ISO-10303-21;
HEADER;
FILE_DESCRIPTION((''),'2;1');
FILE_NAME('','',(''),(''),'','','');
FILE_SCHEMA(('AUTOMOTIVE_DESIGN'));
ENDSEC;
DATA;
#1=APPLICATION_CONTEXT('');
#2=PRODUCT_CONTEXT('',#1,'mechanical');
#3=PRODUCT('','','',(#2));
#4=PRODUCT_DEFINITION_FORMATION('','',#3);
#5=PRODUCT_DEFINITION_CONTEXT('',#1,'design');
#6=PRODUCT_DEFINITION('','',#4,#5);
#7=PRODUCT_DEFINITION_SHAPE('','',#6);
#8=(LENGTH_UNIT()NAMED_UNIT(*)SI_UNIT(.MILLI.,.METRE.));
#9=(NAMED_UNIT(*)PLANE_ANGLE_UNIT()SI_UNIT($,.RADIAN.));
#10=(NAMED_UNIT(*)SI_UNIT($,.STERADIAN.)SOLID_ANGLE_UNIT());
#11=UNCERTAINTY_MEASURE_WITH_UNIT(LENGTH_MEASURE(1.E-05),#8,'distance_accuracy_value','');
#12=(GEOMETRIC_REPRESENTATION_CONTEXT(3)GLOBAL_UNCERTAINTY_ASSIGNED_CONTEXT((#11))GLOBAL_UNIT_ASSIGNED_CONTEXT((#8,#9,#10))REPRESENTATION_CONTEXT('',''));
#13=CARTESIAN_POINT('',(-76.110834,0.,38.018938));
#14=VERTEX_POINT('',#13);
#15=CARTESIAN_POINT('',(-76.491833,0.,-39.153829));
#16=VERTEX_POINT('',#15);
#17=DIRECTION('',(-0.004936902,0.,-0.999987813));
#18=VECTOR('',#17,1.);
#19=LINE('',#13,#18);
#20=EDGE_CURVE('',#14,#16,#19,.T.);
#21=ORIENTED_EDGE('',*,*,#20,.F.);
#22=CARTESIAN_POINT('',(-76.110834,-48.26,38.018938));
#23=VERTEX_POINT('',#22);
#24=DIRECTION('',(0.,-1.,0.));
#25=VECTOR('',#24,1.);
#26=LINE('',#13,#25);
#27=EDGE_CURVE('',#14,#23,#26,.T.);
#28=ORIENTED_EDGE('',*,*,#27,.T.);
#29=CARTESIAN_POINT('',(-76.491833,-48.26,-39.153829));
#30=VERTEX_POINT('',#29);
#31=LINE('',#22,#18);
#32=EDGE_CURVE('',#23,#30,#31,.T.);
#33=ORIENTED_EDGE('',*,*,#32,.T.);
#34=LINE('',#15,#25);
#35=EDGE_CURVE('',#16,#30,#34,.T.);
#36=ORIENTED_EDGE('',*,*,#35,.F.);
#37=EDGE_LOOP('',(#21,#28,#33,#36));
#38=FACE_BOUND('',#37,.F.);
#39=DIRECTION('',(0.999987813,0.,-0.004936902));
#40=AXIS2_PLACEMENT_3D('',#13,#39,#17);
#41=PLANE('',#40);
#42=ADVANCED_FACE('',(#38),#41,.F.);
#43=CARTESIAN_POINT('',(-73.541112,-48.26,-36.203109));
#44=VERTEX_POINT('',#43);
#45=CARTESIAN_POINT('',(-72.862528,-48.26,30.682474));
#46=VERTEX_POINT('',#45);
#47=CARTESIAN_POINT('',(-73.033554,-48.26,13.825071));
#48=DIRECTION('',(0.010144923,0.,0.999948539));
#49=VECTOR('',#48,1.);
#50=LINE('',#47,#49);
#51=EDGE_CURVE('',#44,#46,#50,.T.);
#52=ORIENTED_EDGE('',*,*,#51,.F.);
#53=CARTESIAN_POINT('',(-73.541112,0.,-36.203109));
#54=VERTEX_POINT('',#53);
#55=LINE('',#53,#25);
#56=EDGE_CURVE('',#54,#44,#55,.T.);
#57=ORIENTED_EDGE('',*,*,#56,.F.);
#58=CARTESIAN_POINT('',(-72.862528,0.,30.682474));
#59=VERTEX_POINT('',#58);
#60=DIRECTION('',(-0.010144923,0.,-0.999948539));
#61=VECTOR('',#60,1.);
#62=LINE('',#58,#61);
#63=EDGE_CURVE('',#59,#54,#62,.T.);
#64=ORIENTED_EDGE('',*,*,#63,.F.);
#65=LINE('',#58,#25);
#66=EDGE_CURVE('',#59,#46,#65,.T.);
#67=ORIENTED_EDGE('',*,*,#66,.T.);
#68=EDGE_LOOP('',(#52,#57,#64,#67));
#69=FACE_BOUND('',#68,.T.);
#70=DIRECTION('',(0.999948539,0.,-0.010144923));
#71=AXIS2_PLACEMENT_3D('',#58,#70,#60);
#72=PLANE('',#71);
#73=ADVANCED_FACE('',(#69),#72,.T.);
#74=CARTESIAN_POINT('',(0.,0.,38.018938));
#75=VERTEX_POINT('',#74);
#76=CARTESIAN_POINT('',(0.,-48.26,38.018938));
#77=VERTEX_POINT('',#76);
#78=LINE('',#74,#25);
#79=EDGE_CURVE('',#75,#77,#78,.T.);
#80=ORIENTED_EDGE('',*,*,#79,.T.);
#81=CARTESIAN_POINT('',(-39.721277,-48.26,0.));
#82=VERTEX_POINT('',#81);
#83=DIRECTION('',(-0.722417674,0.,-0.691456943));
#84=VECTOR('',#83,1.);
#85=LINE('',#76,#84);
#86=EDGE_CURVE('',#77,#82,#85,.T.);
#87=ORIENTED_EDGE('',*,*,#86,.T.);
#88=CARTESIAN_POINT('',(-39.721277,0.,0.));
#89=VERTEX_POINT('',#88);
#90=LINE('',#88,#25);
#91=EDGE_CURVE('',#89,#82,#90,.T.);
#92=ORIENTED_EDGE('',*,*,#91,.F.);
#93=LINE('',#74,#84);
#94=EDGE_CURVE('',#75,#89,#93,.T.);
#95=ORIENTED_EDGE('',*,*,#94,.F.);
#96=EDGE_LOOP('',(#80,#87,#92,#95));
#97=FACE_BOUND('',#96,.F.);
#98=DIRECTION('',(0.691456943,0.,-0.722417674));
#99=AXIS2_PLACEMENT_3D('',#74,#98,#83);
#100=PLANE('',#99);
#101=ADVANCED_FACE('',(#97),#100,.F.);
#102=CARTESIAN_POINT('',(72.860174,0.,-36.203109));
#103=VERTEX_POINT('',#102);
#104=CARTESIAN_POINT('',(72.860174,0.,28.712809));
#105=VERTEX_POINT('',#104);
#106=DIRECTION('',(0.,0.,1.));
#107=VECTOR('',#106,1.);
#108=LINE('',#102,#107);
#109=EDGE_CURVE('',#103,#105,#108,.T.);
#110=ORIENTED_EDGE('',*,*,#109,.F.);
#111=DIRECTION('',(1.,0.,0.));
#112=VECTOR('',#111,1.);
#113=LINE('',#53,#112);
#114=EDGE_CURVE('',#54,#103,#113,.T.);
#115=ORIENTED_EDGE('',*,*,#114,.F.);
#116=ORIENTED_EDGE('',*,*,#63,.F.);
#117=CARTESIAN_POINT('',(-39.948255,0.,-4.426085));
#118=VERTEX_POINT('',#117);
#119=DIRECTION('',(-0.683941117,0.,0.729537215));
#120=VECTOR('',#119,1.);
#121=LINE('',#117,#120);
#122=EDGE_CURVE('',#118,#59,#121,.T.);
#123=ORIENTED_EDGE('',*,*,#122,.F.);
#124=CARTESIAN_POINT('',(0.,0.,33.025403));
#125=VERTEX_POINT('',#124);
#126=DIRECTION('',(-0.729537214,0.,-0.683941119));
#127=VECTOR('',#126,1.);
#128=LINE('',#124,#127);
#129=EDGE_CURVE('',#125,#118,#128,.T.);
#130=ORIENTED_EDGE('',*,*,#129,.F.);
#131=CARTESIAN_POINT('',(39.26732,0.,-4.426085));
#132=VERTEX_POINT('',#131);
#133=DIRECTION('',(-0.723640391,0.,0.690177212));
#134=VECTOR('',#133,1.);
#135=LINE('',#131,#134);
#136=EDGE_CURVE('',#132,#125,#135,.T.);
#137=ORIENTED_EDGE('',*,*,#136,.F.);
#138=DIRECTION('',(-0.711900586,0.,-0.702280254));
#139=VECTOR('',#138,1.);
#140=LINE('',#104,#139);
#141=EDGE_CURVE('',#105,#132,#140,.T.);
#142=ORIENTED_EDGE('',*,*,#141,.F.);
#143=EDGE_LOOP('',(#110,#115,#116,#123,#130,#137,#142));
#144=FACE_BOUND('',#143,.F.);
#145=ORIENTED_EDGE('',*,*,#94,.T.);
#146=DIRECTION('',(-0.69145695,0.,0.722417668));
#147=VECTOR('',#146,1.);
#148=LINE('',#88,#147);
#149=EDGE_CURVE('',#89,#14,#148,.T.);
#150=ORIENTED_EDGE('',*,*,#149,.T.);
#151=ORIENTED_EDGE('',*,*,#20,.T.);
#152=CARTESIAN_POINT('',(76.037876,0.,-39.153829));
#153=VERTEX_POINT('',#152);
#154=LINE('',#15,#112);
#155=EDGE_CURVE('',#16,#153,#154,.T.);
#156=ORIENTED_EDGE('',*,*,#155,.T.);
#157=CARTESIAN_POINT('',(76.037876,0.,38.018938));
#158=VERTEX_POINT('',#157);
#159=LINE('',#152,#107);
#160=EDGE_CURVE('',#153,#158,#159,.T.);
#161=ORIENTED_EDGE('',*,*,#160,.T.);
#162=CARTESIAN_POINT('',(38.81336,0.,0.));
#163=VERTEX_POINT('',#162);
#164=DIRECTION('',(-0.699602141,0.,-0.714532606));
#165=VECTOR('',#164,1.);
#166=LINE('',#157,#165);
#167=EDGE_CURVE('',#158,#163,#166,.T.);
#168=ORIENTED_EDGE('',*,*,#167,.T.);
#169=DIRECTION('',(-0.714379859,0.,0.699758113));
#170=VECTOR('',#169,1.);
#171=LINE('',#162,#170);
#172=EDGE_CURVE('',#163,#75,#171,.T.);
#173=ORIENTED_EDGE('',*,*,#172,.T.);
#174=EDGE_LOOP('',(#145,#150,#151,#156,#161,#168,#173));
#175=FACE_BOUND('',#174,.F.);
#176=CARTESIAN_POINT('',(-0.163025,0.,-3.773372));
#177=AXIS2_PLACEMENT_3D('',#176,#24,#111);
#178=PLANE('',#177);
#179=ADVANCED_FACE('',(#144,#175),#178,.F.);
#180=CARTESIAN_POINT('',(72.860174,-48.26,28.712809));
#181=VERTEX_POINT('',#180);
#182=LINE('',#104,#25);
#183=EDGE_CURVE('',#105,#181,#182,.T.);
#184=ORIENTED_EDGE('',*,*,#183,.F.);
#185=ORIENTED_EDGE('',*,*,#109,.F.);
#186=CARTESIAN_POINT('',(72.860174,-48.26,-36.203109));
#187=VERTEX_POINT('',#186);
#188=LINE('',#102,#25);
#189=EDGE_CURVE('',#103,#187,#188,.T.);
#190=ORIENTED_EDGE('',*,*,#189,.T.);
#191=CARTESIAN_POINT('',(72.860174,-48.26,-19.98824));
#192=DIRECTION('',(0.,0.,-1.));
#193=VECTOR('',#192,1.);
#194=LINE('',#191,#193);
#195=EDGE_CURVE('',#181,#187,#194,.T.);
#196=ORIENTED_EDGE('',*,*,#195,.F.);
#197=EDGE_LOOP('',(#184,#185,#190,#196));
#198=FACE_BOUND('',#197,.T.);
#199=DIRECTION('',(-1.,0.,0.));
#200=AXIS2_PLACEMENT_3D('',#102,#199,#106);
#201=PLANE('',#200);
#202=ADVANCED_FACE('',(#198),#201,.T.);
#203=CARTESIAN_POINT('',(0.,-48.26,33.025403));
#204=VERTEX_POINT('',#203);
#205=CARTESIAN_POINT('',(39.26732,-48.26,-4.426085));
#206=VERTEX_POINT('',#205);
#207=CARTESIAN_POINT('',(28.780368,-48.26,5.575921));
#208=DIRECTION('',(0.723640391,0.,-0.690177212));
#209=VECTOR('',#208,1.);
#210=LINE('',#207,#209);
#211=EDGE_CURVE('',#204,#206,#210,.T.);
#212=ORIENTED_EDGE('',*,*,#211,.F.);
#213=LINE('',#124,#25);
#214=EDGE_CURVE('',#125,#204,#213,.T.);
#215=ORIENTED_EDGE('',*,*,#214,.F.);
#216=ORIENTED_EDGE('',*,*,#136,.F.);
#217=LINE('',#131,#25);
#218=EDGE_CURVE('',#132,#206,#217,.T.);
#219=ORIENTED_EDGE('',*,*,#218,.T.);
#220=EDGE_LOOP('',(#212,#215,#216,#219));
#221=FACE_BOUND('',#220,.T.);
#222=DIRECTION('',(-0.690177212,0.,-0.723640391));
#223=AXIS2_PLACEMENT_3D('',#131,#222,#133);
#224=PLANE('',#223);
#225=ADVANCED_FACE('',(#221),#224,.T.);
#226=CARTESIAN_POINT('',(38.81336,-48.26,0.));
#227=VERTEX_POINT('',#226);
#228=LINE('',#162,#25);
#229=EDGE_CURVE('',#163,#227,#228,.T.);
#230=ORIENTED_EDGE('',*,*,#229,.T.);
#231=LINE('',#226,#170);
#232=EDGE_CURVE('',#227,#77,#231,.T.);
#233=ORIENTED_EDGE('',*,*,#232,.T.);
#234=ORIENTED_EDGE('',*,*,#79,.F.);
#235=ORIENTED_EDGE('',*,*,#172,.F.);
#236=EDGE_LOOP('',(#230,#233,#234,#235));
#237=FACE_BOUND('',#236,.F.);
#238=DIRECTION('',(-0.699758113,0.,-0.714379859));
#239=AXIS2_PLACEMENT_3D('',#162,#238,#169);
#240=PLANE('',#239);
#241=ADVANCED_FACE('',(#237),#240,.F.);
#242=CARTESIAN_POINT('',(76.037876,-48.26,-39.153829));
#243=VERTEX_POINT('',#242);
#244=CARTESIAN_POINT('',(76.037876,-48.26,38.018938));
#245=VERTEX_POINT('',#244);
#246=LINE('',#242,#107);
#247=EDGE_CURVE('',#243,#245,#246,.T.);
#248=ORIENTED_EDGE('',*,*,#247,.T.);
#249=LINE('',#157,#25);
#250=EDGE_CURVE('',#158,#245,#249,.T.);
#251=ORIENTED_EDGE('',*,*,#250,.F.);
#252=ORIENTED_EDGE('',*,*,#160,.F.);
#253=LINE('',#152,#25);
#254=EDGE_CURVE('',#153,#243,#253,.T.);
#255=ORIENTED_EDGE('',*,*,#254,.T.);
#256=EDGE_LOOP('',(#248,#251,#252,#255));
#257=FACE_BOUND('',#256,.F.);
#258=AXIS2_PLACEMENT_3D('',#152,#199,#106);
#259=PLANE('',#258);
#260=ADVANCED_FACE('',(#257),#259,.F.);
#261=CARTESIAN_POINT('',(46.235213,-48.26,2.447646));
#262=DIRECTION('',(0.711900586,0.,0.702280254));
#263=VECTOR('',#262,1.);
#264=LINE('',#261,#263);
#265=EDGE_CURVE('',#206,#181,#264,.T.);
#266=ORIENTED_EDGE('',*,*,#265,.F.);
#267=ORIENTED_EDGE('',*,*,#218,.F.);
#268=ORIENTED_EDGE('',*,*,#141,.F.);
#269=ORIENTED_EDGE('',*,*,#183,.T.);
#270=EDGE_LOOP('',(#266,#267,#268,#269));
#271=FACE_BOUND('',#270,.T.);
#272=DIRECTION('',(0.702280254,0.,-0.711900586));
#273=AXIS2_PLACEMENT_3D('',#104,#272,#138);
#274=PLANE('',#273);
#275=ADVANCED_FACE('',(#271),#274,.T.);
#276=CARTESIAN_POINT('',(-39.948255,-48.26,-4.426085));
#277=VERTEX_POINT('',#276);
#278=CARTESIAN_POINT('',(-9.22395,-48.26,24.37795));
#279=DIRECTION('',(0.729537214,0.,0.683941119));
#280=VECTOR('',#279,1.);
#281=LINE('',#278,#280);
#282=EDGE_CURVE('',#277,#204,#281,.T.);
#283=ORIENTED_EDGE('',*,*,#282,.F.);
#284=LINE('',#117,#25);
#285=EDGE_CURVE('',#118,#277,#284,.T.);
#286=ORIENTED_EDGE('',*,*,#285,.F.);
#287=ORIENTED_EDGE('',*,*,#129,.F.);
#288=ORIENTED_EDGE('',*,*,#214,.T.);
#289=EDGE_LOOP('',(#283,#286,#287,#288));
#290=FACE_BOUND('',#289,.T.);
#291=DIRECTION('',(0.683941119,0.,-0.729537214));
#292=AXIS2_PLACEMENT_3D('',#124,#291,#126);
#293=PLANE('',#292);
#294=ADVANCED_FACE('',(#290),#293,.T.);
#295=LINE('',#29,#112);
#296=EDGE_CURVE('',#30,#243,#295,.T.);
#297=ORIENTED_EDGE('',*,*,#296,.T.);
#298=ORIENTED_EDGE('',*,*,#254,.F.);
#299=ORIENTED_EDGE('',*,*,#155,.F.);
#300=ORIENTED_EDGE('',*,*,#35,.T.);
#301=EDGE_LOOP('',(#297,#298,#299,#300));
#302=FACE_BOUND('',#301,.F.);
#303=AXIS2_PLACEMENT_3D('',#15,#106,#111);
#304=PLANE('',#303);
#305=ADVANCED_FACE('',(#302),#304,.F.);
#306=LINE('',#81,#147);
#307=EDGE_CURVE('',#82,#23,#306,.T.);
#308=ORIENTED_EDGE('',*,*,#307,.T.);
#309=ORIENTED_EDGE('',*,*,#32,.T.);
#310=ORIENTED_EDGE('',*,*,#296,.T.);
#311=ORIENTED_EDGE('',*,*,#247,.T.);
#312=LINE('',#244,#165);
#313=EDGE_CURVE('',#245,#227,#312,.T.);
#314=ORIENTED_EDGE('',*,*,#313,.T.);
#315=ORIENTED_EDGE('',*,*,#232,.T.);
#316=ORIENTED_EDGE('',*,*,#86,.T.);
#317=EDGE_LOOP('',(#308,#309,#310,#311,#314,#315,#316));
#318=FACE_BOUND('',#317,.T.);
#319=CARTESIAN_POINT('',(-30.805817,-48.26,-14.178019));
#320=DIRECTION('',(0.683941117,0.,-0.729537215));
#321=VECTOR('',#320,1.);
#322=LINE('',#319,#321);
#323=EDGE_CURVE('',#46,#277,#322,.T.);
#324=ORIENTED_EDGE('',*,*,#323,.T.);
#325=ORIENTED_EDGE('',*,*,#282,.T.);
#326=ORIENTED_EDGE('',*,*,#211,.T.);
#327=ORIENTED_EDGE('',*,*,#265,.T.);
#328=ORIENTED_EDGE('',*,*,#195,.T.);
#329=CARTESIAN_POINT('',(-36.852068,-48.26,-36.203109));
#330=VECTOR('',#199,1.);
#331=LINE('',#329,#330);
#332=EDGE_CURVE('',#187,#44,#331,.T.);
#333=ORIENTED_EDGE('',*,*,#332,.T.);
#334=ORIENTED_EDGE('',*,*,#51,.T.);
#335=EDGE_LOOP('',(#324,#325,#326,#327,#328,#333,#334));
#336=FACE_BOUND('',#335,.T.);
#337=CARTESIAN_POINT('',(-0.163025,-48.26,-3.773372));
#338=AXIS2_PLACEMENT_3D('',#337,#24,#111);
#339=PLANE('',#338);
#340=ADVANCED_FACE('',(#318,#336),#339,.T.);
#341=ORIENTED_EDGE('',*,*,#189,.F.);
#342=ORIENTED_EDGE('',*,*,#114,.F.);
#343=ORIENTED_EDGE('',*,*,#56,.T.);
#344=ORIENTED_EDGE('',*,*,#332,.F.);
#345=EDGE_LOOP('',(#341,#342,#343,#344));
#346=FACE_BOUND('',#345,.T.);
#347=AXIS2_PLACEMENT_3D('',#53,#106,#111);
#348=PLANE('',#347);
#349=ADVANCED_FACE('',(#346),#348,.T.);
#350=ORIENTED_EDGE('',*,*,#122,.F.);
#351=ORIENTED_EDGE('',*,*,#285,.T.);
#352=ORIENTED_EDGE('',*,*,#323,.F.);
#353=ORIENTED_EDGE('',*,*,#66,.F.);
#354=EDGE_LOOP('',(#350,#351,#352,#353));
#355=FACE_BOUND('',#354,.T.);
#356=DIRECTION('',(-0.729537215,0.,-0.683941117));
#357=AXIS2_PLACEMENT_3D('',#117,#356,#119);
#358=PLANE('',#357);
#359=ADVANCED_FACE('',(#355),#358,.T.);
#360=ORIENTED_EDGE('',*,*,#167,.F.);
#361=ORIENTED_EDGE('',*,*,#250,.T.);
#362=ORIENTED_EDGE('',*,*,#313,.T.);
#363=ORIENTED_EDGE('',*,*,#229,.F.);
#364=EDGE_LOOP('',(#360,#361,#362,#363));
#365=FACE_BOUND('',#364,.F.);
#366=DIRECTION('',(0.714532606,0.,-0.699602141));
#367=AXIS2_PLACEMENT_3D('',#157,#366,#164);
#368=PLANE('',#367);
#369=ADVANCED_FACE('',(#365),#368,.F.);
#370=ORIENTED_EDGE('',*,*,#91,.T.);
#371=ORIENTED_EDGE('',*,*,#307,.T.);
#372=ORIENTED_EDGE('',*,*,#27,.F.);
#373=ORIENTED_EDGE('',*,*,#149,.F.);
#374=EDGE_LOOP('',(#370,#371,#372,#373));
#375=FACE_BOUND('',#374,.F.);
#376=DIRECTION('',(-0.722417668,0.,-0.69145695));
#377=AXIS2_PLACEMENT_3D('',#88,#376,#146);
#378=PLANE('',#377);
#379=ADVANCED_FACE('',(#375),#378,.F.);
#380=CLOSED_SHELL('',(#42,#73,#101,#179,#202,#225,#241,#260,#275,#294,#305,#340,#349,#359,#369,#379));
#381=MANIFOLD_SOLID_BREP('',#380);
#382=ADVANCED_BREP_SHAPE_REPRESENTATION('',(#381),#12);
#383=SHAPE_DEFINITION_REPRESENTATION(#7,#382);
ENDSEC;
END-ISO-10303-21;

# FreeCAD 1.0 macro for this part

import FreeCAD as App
import Part
import Sketcher
Q = App.Units.Quantity

doc = App.newDocument("Part")
body = doc.addObject("PartDesign::Body", "Body")

# Sketch on XZ plane
sketch1 = doc.addObject("Sketcher::SketchObject", "Sketch")
body.addObject(sketch1)
sketch1.AttachmentSupport = (doc.XZ_Plane, [""])
sketch1.MapMode = "FlatFace"
sketch1.addGeometry([
    Part.LineSegment(App.Vector(-76, 38, 0), App.Vector(-76, -39, 0)),  # 0
    Part.LineSegment(App.Vector(-76, -39, 0), App.Vector(76, -39, 0)),  # 1
    Part.LineSegment(App.Vector(76, -39, 0), App.Vector(76, 38, 0)),  # 2
    Part.LineSegment(App.Vector(76, 38, 0), App.Vector(39, 0, 0)),  # 3
    Part.LineSegment(App.Vector(39, 0, 0), App.Vector(0, 38, 0)),  # 4
    Part.LineSegment(App.Vector(0, 38, 0), App.Vector(-40, 0, 0)),  # 5
    Part.LineSegment(App.Vector(-40, 0, 0), App.Vector(-76, 38, 0)),  # 6
], False)
sketch1.addConstraint([
    Sketcher.Constraint("Coincident", 0, 2, 1, 1),
    Sketcher.Constraint("Coincident", 1, 2, 2, 1),
    Sketcher.Constraint("Coincident", 2, 2, 3, 1),
    Sketcher.Constraint("Coincident", 3, 2, 4, 1),
    Sketcher.Constraint("Coincident", 4, 2, 5, 1),
    Sketcher.Constraint("Coincident", 5, 2, 6, 1),
    Sketcher.Constraint("Coincident", 6, 2, 0, 1),
    Sketcher.Constraint("Horizontal", 1),
    Sketcher.Constraint("Vertical", 2),
    Sketcher.Constraint("PointOnObject", 3, 2, -1),
    Sketcher.Constraint("PointOnObject", 4, 2, -2),
    Sketcher.Constraint("PointOnObject", 5, 2, -1),
    Sketcher.Constraint("Perpendicular", 5, 6),
    Sketcher.Constraint("Horizontal", 2, 2, 4, 2),
    Sketcher.Constraint("Horizontal", 4, 2, 6, 2),
    Sketcher.Constraint("DistanceX", 0, 2, 6, 2, Q("0.015 in")),
    Sketcher.Constraint("DistanceX", 1, 1, 1, 2, Q("152.529709 mm")),
    Sketcher.Constraint("Distance", 3, Q("53.208122 mm")),
    Sketcher.Constraint("Distance", 5, Q("54.983811 mm")),
    Sketcher.Constraint("DistanceY", 2, 1, 2, 2, Q("77.172767 mm")),
    Sketcher.Constraint("DistanceY", 0, 2, -1, 1, Q("39.153829 mm")),
])
pad1 = doc.addObject("PartDesign::Pad", "Pad")
body.addObject(pad1)
pad1.Profile = sketch1
pad1.Length = Q("1.9 in")

# Sketch on XZ plane
sketch2 = doc.addObject("Sketcher::SketchObject", "Sketch001")
body.addObject(sketch2)
sketch2.AttachmentSupport = (doc.XZ_Plane, [""])
sketch2.MapMode = "FlatFace"
sketch2.addGeometry([
    Part.LineSegment(App.Vector(-73, 31, 0), App.Vector(-74, -36, 0)),  # 0
    Part.LineSegment(App.Vector(-74, -36, 0), App.Vector(73, -36, 0)),  # 1
    Part.LineSegment(App.Vector(73, -36, 0), App.Vector(73, 29, 0)),  # 2
    Part.LineSegment(App.Vector(73, 29, 0), App.Vector(39, -4, 0)),  # 3
    Part.LineSegment(App.Vector(39, -4, 0), App.Vector(0, 33, 0)),  # 4
    Part.LineSegment(App.Vector(0, 33, 0), App.Vector(-40, -4, 0)),  # 5
    Part.LineSegment(App.Vector(-40, -4, 0), App.Vector(-73, 31, 0)),  # 6
], False)
sketch2.addConstraint([
    Sketcher.Constraint("Coincident", 0, 2, 1, 1),
    Sketcher.Constraint("Coincident", 1, 2, 2, 1),
    Sketcher.Constraint("Coincident", 2, 2, 3, 1),
    Sketcher.Constraint("Coincident", 3, 2, 4, 1),
    Sketcher.Constraint("Coincident", 4, 2, 5, 1),
    Sketcher.Constraint("Coincident", 5, 2, 6, 1),
    Sketcher.Constraint("Coincident", 6, 2, 0, 1),
    Sketcher.Constraint("Horizontal", 1),
    Sketcher.Constraint("Vertical", 2),
    Sketcher.Constraint("PointOnObject", 4, 2, -2),
    Sketcher.Constraint("Perpendicular", 5, 6),
    Sketcher.Constraint("Horizontal", 3, 2, 5, 2),
    Sketcher.Constraint("DistanceY", 2, 1, 2, 2, Q("64.915918 mm")),
    Sketcher.Constraint("DistanceX", 6, 2, 2, 2, Q("145.722702 mm")),
    Sketcher.Constraint("Distance", 5, Q("54.758351 mm")),
    Sketcher.Constraint("DistanceX", 1, 1, 1, 2, Q("146.401286 mm")),
    Sketcher.Constraint("DistanceX", 0, 2, -1, 1, Q("73.541112 mm")),
    Sketcher.Constraint("DistanceY", 0, 2, -1, 1, Q("36.203109 mm")),
    Sketcher.Constraint("DistanceX", -1, 1, 3, 2, Q("39.26732 mm")),
    Sketcher.Constraint("DistanceY", 1, 2, 4, 2, Q("69.228512 mm")),
    Sketcher.Constraint("DistanceX", 5, 2, 1, 2, Q("112.808429 mm")),
])
pocket1 = doc.addObject("PartDesign::Pocket", "Pocket")
body.addObject(pocket1)
pocket1.Profile = sketch2
pocket1.Length = Q("4.29 in")
pocket1.Reversed = True

doc.recompute()
